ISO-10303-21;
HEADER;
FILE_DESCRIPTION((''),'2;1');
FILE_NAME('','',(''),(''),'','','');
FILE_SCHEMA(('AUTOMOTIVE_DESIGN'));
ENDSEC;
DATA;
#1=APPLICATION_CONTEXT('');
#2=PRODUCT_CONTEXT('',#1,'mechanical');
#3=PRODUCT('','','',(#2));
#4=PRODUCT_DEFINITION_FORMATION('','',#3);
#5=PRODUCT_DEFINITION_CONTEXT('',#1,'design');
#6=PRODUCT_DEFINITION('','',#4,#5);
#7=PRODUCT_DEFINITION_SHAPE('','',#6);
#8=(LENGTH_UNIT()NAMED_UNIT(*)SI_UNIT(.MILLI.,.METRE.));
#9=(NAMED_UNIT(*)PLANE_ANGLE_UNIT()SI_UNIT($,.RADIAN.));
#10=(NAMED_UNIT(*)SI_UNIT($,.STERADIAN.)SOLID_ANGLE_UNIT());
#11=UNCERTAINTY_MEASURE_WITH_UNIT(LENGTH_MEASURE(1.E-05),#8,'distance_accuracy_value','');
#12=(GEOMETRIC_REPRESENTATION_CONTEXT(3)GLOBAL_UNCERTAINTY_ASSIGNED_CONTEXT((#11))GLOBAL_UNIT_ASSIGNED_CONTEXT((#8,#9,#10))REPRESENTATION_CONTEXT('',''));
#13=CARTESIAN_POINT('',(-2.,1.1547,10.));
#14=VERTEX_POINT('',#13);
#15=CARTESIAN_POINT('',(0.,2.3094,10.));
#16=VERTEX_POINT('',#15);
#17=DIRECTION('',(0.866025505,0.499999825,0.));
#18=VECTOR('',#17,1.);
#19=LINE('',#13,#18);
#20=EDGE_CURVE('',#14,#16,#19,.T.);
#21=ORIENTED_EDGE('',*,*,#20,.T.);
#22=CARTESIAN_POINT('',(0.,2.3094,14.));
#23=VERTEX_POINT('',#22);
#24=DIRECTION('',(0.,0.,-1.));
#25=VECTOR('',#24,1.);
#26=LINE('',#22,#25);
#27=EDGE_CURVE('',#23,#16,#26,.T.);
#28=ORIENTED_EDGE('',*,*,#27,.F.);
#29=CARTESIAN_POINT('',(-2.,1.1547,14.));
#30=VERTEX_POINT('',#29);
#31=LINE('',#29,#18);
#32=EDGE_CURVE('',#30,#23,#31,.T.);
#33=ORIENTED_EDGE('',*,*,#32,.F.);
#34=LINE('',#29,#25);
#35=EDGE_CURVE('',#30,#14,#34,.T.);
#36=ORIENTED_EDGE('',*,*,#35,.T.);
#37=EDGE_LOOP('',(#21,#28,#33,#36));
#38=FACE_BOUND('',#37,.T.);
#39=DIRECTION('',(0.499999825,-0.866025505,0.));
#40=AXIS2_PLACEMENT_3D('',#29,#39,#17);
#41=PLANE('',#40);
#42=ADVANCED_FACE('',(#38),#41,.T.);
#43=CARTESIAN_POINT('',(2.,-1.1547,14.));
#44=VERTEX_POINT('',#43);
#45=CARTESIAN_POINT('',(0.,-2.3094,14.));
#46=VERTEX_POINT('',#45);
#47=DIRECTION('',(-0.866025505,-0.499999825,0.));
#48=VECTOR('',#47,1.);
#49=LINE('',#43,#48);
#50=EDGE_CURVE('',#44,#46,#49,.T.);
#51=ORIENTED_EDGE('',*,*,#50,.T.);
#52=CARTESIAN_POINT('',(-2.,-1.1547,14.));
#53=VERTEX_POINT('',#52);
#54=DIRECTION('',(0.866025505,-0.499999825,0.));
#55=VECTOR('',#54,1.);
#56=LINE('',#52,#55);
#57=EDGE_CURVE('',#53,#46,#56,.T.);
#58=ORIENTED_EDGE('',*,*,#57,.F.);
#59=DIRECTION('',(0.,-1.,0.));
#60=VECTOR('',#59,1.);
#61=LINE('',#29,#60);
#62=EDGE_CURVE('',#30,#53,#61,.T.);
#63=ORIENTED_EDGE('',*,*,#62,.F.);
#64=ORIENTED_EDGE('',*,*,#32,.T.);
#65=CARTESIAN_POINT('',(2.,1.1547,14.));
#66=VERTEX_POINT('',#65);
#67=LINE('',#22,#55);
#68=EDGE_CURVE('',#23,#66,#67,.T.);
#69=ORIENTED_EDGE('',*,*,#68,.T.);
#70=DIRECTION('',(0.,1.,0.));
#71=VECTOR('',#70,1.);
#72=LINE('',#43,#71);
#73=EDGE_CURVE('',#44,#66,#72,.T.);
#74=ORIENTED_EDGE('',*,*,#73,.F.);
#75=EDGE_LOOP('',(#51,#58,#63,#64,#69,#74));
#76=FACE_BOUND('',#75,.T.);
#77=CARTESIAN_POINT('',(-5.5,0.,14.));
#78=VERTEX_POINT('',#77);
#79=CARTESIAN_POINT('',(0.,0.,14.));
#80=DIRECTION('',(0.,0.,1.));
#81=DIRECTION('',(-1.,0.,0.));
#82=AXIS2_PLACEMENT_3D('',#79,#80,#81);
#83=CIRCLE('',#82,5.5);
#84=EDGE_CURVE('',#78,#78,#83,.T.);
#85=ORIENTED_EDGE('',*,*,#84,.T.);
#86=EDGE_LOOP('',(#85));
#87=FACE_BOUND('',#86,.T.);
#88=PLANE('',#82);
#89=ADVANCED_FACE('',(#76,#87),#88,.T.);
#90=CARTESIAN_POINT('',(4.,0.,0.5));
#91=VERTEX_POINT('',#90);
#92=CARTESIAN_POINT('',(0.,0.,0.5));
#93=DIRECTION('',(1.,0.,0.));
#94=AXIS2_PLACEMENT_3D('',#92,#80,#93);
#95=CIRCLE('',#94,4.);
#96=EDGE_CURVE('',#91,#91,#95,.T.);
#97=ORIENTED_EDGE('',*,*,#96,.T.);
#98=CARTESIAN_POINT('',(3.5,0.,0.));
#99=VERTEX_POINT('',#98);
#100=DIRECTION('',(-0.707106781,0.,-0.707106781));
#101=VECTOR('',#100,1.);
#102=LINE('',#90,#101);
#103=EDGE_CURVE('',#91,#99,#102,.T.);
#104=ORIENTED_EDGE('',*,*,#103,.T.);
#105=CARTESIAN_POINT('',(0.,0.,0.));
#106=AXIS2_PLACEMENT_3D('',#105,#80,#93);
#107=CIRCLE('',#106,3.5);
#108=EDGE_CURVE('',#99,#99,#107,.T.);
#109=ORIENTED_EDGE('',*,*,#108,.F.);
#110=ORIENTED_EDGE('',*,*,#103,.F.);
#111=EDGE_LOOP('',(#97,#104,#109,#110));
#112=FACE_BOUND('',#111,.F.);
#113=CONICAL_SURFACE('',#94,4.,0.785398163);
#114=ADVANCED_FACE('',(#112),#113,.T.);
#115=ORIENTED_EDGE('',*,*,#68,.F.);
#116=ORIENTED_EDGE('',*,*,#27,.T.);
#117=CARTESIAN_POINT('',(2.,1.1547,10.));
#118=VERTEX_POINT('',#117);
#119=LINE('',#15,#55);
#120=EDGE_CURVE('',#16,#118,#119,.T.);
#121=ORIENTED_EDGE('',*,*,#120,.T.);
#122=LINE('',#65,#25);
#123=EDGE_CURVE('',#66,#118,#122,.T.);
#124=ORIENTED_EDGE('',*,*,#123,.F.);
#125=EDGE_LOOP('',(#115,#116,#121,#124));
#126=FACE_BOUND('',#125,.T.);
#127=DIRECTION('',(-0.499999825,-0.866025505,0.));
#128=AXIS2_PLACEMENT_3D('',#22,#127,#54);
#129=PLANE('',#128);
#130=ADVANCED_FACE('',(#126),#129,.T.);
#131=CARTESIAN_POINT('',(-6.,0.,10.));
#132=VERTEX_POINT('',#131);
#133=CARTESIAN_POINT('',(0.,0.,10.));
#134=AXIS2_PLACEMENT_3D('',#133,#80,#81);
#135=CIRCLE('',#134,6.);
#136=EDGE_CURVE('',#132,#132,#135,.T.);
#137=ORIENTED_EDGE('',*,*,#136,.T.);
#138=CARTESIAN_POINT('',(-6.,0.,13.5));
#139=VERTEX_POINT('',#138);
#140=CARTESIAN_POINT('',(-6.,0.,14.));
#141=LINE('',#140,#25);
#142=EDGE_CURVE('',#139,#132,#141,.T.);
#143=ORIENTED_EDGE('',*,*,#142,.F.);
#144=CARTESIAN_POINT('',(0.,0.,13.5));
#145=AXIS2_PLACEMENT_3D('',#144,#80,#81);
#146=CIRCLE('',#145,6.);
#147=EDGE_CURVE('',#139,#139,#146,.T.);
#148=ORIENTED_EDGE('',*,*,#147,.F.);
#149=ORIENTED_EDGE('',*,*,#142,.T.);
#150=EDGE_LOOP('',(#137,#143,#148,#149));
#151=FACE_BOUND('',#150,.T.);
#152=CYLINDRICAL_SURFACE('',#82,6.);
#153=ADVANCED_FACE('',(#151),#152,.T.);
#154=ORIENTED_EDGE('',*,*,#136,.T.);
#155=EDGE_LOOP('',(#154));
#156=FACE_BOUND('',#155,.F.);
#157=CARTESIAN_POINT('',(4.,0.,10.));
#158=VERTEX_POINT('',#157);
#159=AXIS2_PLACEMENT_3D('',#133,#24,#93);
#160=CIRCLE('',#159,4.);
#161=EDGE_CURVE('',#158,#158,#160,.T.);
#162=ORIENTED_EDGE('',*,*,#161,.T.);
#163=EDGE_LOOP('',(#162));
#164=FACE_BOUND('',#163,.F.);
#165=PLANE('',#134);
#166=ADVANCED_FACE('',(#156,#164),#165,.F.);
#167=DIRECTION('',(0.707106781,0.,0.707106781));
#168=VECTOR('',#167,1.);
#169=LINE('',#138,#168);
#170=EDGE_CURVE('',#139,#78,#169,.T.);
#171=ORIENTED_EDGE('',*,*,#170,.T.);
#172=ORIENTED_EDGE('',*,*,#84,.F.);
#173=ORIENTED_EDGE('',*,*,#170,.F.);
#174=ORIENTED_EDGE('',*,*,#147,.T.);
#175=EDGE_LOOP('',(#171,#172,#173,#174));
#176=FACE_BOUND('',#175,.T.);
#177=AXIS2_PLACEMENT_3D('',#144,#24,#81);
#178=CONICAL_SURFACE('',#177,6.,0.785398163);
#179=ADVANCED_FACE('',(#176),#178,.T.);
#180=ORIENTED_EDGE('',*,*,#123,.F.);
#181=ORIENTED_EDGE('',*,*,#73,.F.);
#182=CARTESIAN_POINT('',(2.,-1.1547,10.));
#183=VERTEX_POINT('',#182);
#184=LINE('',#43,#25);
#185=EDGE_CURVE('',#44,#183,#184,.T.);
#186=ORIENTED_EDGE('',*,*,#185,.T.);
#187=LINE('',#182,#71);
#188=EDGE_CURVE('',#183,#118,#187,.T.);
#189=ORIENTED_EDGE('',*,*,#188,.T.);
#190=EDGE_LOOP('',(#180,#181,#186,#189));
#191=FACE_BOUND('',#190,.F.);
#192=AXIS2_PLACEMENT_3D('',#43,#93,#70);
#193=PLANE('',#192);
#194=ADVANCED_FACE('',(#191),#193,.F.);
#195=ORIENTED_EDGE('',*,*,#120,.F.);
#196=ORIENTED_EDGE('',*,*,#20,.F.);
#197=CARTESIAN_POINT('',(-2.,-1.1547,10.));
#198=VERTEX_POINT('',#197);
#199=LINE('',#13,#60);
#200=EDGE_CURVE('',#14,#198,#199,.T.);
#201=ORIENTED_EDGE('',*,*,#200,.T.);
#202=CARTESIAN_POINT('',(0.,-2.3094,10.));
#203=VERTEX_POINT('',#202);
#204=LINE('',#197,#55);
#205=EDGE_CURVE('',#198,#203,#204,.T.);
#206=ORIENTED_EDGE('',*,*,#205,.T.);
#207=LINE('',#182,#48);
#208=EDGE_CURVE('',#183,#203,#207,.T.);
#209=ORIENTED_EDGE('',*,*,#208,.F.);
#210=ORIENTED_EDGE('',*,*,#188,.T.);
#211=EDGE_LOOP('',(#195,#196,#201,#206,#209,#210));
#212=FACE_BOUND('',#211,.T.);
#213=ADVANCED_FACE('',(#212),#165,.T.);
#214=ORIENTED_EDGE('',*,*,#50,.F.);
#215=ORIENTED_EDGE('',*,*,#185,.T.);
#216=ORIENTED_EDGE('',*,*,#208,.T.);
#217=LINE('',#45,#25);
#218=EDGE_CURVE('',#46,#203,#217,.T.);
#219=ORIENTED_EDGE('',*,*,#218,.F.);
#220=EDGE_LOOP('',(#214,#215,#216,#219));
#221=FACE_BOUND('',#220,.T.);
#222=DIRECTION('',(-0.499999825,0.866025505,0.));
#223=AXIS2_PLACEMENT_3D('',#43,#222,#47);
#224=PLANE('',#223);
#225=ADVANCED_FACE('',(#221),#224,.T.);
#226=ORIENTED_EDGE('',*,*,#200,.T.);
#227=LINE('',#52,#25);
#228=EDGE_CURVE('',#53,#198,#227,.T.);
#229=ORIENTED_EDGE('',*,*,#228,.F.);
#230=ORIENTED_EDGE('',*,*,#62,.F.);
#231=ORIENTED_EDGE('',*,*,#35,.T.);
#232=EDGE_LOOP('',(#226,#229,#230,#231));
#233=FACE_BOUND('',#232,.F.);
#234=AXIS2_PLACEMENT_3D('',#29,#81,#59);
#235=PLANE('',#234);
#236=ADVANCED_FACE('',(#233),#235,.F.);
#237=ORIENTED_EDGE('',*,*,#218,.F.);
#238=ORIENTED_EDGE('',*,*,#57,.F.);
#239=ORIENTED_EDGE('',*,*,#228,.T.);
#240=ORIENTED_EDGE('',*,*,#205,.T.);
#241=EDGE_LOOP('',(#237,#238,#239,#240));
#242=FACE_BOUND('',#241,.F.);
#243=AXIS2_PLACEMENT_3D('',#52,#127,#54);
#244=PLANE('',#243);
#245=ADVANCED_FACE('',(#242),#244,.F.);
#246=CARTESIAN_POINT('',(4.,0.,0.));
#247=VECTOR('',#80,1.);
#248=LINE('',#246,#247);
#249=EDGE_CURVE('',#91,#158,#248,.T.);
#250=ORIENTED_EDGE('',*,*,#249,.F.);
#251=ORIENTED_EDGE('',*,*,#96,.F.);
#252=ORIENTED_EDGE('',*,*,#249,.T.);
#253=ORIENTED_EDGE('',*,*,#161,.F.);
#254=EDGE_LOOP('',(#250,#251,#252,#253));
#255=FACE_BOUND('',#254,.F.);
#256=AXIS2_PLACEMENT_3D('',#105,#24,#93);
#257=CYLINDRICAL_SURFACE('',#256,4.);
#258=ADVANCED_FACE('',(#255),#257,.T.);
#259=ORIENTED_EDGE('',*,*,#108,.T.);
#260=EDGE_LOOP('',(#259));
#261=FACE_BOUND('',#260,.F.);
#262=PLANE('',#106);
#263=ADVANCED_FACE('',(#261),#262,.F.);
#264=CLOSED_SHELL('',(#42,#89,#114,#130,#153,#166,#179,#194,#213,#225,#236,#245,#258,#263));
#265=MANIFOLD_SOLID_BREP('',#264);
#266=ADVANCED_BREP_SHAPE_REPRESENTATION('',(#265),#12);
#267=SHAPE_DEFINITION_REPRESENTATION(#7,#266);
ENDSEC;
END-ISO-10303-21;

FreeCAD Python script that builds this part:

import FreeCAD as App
import Part
import Sketcher

V = App.Vector
Q = App.Units.Quantity


def edges_at(feature, points):
    """Names of the edges that pass closest to the given points."""
    edges = feature.Shape.Edges
    near = lambda p: min(range(len(edges)), key=lambda i: edges[i].distToShape(Part.Vertex(*p))[0])
    return sorted({f"Edge{near(p) + 1}" for p in points})

doc = App.newDocument("Part")
body = doc.addObject("PartDesign::Body", "Body")

sketch1 = body.newObject("Sketcher::SketchObject", "Sketch")
sketch1.AttachmentSupport = (doc.getObject("XY_Plane"), [""])
sketch1.MapMode = "FlatFace"
sketch1.addGeometry(Part.Circle(V(0, 0, 0), V(0, 0, 1), 4), False)
sketch1.addConstraint([
    Sketcher.Constraint("Coincident", 0, 3, -1, 1),
    Sketcher.Constraint("Diameter", 0, 8.0),
])
pad1 = body.newObject("PartDesign::Pad", "Pad")
pad1.Profile = sketch1
pad1.Length = 14

sketch2 = body.newObject("Sketcher::SketchObject", "Sketch001")
sketch2.AttachmentSupport = (doc.getObject("XY_Plane"), [""])
sketch2.MapMode = "FlatFace"
sketch2.AttachmentOffset = App.Placement(V(0, 0, 14), App.Rotation())
sketch2.addGeometry([
    Part.Circle(V(0, 0, 0), V(0, 0, 1), 6),
    Part.Circle(V(0, 0, 0), V(0, 0, 1), 4),
], False)
sketch2.addConstraint([
    Sketcher.Constraint("Coincident", 0, 3, -1, 1),
    Sketcher.Constraint("Coincident", 1, 3, -1, 1),
    Sketcher.Constraint("Diameter", 0, 12.0),
    Sketcher.Constraint("Diameter", 1, 8.0),
])
pad2 = body.newObject("PartDesign::Pad", "Pad001")
pad2.Profile = sketch2
pad2.Length = 4
pad2.Reversed = True
doc.recompute()

chamfer = body.newObject("PartDesign::Chamfer", "Chamfer")
chamfer.Base = (pad2, edges_at(pad2, [(5.594, 2.17, 14)]))
chamfer.Size = 0.5
doc.recompute()

chamfer2 = body.newObject("PartDesign::Chamfer", "Chamfer001")
chamfer2.Base = (chamfer, edges_at(chamfer, [(-3.729, -1.446, 0)]))
chamfer2.Size = 0.5

sketch3 = body.newObject("Sketcher::SketchObject", "Sketch002")
sketch3.AttachmentSupport = (doc.getObject("XY_Plane"), [""])
sketch3.MapMode = "FlatFace"
sketch3.AttachmentOffset = App.Placement(V(0, 0, 14), App.Rotation())
sketch3.addGeometry([
    Part.LineSegment(V(0, 2.3, 0), V(-2, 1.2, 0)),
    Part.LineSegment(V(-2, 1.2, 0), V(-2, -1.2, 0)),
    Part.LineSegment(V(-2, -1.2, 0), V(0, -2.3, 0)),
    Part.LineSegment(V(0, -2.3, 0), V(2, -1.2, 0)),
    Part.LineSegment(V(2, -1.2, 0), V(2, 1.2, 0)),
    Part.LineSegment(V(2, 1.2, 0), V(0, 2.3, 0)),
], False)
sketch3.addConstraint([
    Sketcher.Constraint("Coincident", 0, 2, 1, 1),
    Sketcher.Constraint("Coincident", 1, 2, 2, 1),
    Sketcher.Constraint("Coincident", 2, 2, 3, 1),
    Sketcher.Constraint("Coincident", 3, 2, 4, 1),
    Sketcher.Constraint("Coincident", 4, 2, 5, 1),
    Sketcher.Constraint("Coincident", 5, 2, 0, 1),
    Sketcher.Constraint("Vertical", 1),
    Sketcher.Constraint("Vertical", 4),
    Sketcher.Constraint("Symmetric", 0, 2, 3, 2, -1, 1),
    Sketcher.Constraint("Symmetric", 2, 2, 5, 2, -1, 1),
    Sketcher.Constraint("PointOnObject", 2, 2, -2),
    Sketcher.Constraint("Parallel", 2, 5),
    Sketcher.Constraint("Horizontal", 1, 2, 3, 2),
    Sketcher.Constraint("Angle", 0, Q("-150 deg")),
    Sketcher.Constraint("DistanceX", 0, 2, -1, 1, 2.0),
    Sketcher.Constraint("DistanceY", 1, 2, 1, 1, 2.3094),
])
pocket1 = body.newObject("PartDesign::Pocket", "Pocket")
pocket1.Profile = sketch3
pocket1.Length = 4

doc.recompute()
